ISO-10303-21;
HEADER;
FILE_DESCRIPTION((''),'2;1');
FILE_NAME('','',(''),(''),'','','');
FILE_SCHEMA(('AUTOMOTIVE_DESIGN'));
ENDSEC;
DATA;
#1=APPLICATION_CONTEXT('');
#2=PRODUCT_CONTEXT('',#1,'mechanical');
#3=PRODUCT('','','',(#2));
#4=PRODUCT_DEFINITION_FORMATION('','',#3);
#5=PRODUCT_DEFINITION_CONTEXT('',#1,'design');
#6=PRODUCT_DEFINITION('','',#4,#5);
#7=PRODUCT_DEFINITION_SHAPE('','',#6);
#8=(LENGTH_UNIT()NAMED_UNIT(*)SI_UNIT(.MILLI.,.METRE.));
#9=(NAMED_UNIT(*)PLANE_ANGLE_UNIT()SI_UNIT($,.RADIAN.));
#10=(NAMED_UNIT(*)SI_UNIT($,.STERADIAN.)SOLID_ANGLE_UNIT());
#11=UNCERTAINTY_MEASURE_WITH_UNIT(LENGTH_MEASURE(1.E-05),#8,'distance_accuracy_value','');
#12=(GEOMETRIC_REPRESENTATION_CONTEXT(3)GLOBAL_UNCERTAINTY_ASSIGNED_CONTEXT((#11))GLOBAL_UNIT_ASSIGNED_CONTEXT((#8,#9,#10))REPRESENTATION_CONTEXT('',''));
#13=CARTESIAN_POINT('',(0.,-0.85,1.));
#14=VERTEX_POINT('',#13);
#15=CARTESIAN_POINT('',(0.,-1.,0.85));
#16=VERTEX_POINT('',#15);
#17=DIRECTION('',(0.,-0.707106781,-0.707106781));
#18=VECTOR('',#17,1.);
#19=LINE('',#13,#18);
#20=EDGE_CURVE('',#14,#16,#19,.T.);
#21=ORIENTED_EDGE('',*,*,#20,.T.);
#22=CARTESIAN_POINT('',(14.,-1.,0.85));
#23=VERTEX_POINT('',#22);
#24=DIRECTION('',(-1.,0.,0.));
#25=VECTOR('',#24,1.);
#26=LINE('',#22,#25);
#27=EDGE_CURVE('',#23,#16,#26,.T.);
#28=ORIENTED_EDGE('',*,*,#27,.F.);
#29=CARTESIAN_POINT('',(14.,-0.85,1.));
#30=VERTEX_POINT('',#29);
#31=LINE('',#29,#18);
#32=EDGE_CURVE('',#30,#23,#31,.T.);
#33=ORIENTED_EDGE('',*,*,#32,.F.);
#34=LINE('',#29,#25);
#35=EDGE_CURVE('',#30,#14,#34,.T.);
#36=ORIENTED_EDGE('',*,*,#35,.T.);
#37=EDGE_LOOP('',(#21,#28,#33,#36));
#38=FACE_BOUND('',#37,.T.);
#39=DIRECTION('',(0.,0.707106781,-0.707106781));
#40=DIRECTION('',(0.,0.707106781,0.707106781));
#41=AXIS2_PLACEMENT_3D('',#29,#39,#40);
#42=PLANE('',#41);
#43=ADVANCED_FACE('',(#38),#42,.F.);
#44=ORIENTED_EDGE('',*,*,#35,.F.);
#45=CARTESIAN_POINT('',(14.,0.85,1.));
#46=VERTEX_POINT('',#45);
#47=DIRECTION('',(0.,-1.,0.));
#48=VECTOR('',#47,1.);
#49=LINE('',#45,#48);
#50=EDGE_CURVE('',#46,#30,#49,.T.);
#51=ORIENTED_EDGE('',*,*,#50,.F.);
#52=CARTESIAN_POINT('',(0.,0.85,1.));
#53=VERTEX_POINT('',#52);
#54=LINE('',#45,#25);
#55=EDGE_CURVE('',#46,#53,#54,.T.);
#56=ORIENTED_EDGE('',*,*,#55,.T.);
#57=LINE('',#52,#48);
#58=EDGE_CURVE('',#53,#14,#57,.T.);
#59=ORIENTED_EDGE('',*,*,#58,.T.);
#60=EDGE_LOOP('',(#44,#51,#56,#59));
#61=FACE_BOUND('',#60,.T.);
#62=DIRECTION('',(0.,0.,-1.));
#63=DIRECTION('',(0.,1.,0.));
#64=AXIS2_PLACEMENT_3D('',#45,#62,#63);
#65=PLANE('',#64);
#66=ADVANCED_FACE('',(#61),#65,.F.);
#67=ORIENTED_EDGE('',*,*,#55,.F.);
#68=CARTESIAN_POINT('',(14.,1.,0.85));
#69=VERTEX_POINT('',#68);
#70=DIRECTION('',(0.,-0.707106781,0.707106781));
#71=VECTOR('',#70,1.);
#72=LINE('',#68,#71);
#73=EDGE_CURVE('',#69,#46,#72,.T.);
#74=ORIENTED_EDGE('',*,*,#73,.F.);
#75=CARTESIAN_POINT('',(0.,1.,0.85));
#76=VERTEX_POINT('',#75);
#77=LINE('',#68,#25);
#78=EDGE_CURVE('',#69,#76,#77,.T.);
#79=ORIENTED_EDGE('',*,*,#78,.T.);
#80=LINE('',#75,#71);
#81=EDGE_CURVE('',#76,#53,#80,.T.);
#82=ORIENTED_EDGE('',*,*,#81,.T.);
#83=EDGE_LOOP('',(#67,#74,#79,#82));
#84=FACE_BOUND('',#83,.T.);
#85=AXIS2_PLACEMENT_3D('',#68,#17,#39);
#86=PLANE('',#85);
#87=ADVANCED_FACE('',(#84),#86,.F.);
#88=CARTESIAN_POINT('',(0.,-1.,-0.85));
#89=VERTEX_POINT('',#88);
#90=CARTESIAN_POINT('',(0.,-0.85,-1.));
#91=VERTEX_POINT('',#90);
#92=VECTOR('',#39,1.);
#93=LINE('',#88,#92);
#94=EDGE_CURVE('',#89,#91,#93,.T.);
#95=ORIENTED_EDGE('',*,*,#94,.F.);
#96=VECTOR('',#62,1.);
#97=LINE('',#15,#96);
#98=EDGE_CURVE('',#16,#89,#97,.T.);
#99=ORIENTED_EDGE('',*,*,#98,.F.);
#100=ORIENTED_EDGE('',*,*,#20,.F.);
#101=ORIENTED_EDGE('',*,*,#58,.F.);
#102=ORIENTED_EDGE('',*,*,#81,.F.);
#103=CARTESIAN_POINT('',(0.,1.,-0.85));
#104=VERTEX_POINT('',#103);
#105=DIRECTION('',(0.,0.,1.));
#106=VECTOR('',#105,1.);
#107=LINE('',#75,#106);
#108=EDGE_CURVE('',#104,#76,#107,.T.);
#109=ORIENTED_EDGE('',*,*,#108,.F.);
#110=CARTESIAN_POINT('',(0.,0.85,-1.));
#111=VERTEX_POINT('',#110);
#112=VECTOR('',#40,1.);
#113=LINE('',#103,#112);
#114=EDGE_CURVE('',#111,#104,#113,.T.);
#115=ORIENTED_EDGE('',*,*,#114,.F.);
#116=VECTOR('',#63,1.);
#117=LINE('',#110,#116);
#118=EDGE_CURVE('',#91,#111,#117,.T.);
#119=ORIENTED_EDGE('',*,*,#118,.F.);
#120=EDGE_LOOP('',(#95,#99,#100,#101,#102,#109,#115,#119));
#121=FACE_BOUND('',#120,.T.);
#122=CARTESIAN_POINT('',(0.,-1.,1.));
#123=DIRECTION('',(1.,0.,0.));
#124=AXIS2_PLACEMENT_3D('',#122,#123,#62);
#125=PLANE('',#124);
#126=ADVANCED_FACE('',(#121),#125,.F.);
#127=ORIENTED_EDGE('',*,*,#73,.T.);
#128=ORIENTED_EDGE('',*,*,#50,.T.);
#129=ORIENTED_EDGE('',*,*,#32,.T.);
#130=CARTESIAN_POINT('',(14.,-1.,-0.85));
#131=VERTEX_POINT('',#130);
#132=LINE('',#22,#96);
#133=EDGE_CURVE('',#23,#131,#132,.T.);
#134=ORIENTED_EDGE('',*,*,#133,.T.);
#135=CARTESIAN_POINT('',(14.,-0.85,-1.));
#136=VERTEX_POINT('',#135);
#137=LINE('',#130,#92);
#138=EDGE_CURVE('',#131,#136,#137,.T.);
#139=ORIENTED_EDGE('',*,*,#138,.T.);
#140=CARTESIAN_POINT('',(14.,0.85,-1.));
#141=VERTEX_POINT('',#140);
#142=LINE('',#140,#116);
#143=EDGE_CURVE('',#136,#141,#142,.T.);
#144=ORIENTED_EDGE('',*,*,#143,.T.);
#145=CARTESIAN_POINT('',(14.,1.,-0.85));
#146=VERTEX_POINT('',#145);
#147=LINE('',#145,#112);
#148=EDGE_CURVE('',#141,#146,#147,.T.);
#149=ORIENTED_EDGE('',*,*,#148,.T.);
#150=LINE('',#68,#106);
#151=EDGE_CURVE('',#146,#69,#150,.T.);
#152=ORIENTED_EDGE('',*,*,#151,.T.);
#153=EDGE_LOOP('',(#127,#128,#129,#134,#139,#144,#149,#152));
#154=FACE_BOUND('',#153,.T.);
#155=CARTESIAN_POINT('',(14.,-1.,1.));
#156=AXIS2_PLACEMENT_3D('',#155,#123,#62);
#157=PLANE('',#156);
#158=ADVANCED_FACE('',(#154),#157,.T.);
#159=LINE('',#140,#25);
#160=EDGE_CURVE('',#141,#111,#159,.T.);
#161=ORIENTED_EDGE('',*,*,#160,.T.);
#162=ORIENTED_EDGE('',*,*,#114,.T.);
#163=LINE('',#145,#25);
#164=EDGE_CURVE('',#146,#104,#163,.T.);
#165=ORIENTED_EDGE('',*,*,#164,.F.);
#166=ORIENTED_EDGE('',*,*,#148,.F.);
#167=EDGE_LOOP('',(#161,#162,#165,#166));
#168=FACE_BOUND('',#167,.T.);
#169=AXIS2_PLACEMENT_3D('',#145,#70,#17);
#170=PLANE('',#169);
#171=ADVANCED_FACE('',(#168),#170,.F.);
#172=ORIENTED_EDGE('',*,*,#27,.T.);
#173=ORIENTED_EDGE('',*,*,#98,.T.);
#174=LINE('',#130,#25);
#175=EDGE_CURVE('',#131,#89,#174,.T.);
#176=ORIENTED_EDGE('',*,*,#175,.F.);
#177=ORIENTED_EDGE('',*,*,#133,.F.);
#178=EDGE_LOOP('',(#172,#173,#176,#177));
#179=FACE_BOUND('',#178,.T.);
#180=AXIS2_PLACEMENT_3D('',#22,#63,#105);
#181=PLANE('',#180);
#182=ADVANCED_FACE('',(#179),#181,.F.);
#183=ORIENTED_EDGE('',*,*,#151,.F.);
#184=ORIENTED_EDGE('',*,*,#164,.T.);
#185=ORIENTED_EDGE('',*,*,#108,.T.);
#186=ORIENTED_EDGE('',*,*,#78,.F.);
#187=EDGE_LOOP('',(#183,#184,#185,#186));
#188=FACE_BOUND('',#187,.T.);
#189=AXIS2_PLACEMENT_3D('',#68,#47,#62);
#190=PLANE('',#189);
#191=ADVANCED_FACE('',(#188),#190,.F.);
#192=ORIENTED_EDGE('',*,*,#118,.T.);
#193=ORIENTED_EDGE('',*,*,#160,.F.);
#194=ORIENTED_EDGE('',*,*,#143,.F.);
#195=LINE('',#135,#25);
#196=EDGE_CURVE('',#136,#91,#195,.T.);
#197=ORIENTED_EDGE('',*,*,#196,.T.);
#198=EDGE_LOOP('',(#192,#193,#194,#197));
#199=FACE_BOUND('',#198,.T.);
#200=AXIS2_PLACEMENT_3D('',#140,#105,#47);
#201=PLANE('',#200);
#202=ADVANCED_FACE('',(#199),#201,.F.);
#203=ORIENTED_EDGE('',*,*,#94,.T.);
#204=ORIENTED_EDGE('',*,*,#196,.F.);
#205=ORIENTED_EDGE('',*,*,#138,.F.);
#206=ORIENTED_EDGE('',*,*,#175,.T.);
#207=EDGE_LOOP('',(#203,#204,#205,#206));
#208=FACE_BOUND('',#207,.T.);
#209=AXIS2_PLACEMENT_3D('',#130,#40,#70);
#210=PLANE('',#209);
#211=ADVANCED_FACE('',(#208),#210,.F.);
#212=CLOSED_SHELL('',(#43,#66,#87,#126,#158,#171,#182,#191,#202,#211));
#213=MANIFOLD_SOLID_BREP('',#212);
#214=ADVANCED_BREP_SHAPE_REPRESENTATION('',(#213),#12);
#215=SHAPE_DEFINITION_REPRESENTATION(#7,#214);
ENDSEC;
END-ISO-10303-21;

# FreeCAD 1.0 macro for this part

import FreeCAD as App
import Part
import Sketcher
Q = App.Units.Quantity

doc = App.newDocument("Part")
body = doc.addObject("PartDesign::Body", "Body")

# Sketch on YZ plane
sketch1 = body.newObject("Sketcher::SketchObject", "Sketch")
sketch1.AttachmentSupport = (doc.getObject("YZ_Plane"), [""])
sketch1.MapMode = "FlatFace"
sketch1.addGeometry([
    Part.LineSegment(App.Vector(1, 0.85, 0), App.Vector(0.85, 1, 0)),  # 0
    Part.LineSegment(App.Vector(0.85, 1, 0), App.Vector(-0.85, 1, 0)),  # 1
    Part.LineSegment(App.Vector(-0.85, 1, 0), App.Vector(-1, 0.85, 0)),  # 2
    Part.LineSegment(App.Vector(-1, 0.85, 0), App.Vector(-1, -0.85, 0)),  # 3
    Part.LineSegment(App.Vector(-1, -0.85, 0), App.Vector(-0.85, -1, 0)),  # 4
    Part.LineSegment(App.Vector(-0.85, -1, 0), App.Vector(0.85, -1, 0)),  # 5
    Part.LineSegment(App.Vector(0.85, -1, 0), App.Vector(1, -0.85, 0)),  # 6
    Part.LineSegment(App.Vector(1, -0.85, 0), App.Vector(1, 0.85, 0)),  # 7
], False)
sketch1.addConstraint([
    Sketcher.Constraint("Coincident", 0, 2, 1, 1),
    Sketcher.Constraint("Coincident", 1, 2, 2, 1),
    Sketcher.Constraint("Coincident", 2, 2, 3, 1),
    Sketcher.Constraint("Coincident", 3, 2, 4, 1),
    Sketcher.Constraint("Coincident", 4, 2, 5, 1),
    Sketcher.Constraint("Coincident", 5, 2, 6, 1),
    Sketcher.Constraint("Coincident", 6, 2, 7, 1),
    Sketcher.Constraint("Coincident", 7, 2, 0, 1),
    Sketcher.Constraint("Horizontal", 1),
    Sketcher.Constraint("Vertical", 3),
    Sketcher.Constraint("Horizontal", 5),
    Sketcher.Constraint("Vertical", 7),
    Sketcher.Constraint("Symmetric", 0, 2, 4, 2, -1, 1),
    Sketcher.Constraint("Symmetric", 2, 2, 6, 2, -1, 1),
    Sketcher.Constraint("Perpendicular", 0, 2),
    Sketcher.Constraint("Perpendicular", 2, 4),
    Sketcher.Constraint("Perpendicular", 4, 6),
    Sketcher.Constraint("Horizontal", 3, 2, 6, 2),
    Sketcher.Constraint("Vertical", 1, 2, 4, 2),
    Sketcher.Constraint("Equal", 5, 3),
    Sketcher.Constraint("DistanceX", 1, 2, 1, 1, Q("1.7 mm")),
    Sketcher.Constraint("DistanceY", -1, 1, 0, 2, Q("1 mm")),
])
pad1 = body.newObject("PartDesign::Pad", "Pad")
pad1.Profile = sketch1
pad1.Length = 14

doc.recompute()
